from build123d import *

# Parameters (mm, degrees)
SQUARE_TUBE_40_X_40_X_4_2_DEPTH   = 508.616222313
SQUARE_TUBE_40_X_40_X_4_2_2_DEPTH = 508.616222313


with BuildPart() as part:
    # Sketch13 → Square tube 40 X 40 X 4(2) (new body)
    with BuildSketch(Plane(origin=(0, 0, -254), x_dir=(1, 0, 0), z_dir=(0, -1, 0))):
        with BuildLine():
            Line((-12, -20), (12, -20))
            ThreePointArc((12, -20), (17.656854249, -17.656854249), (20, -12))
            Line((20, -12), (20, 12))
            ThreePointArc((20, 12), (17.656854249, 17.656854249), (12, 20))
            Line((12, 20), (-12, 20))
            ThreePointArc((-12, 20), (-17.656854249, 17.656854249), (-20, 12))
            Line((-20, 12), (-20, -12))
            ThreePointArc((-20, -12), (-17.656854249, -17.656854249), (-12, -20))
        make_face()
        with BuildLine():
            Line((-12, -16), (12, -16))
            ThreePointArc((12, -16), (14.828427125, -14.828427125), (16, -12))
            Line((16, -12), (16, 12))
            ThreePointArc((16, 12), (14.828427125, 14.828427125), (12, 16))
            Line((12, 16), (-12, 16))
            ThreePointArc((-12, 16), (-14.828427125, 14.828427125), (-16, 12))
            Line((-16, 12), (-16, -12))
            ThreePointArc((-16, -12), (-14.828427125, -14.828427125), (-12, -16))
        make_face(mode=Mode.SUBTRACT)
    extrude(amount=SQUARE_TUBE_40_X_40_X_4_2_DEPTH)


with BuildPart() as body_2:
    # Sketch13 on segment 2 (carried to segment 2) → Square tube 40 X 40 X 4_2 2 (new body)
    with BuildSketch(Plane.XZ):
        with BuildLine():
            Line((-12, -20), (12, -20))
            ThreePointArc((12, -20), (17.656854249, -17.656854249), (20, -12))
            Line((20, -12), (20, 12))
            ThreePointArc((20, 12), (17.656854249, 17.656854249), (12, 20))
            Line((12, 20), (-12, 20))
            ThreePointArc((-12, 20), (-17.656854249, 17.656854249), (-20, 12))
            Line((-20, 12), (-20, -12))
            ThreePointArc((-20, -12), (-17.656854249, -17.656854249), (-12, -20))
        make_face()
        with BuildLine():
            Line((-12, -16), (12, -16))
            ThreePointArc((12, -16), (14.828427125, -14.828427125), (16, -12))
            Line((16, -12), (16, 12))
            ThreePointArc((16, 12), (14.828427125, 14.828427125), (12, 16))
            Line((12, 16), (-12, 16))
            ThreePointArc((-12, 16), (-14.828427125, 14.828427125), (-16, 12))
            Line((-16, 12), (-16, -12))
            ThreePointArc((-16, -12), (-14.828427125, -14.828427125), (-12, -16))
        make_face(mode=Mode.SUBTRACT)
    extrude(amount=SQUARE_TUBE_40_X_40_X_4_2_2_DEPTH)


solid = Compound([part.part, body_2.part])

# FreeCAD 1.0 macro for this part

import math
import FreeCAD as App
import Part
import Sketcher
Q = App.Units.Quantity

doc = App.newDocument("Part")
body = doc.addObject("PartDesign::Body", "Body")

sketch1 = body.newObject("Sketcher::SketchObject", "Sketch")
sketch1.AttachmentSupport = (doc.getObject("XZ_Plane"), [""])
sketch1.MapMode = "FlatFace"
sketch1.addGeometry([
    Part.LineSegment(App.Vector(-12, -274, 0), App.Vector(12, -274, 0)),
    Part.ArcOfCircle(Part.Circle(App.Vector(12, -266, 0), App.Vector(0, 0, 1), 8), math.radians(-90), math.radians(0)),
    Part.LineSegment(App.Vector(20, -266, 0), App.Vector(20, -242, 0)),
    Part.ArcOfCircle(Part.Circle(App.Vector(12, -242, 0), App.Vector(0, 0, 1), 8), math.radians(0), math.radians(90)),
    Part.LineSegment(App.Vector(12, -234, 0), App.Vector(-12, -234, 0)),
    Part.ArcOfCircle(Part.Circle(App.Vector(-12, -242, 0), App.Vector(0, 0, 1), 8), math.radians(90), math.radians(180)),
    Part.LineSegment(App.Vector(-20, -242, 0), App.Vector(-20, -266, 0)),
    Part.ArcOfCircle(Part.Circle(App.Vector(-12, -266, 0), App.Vector(0, 0, 1), 8), math.radians(-180), math.radians(-90)),
    Part.LineSegment(App.Vector(12, -270, 0), App.Vector(-12, -270, 0)),
    Part.ArcOfCircle(Part.Circle(App.Vector(-12, -266, 0), App.Vector(0, 0, 1), 4), math.radians(180), math.radians(270)),
    Part.LineSegment(App.Vector(-16, -266, 0), App.Vector(-16, -242, 0)),
    Part.ArcOfCircle(Part.Circle(App.Vector(-12, -242, 0), App.Vector(0, 0, 1), 4), math.radians(90), math.radians(180)),
    Part.LineSegment(App.Vector(-12, -238, 0), App.Vector(12, -238, 0)),
    Part.ArcOfCircle(Part.Circle(App.Vector(12, -242, 0), App.Vector(0, 0, 1), 4), math.radians(0), math.radians(90)),
    Part.LineSegment(App.Vector(16, -242, 0), App.Vector(16, -266, 0)),
    Part.ArcOfCircle(Part.Circle(App.Vector(12, -266, 0), App.Vector(0, 0, 1), 4), math.radians(-90), math.radians(0)),
], False)
sketch1.addConstraint([
    Sketcher.Constraint("Tangent", 0, 2, 1, 1),
    Sketcher.Constraint("Tangent", 1, 2, 2, 1),
    Sketcher.Constraint("Tangent", 2, 2, 3, 1),
    Sketcher.Constraint("Tangent", 3, 2, 4, 1),
    Sketcher.Constraint("Tangent", 4, 2, 5, 1),
    Sketcher.Constraint("Tangent", 5, 2, 6, 1),
    Sketcher.Constraint("Tangent", 6, 2, 7, 1),
    Sketcher.Constraint("Tangent", 7, 2, 0, 1),
    Sketcher.Constraint("Tangent", 8, 2, 9, 2),
    Sketcher.Constraint("Tangent", 9, 1, 10, 1),
    Sketcher.Constraint("Tangent", 10, 2, 11, 2),
    Sketcher.Constraint("Tangent", 11, 1, 12, 1),
    Sketcher.Constraint("Tangent", 12, 2, 13, 2),
    Sketcher.Constraint("Tangent", 13, 1, 14, 1),
    Sketcher.Constraint("Tangent", 14, 2, 15, 2),
    Sketcher.Constraint("Tangent", 15, 1, 8, 1),
    Sketcher.Constraint("Horizontal", 0),
    Sketcher.Constraint("Vertical", 2),
    Sketcher.Constraint("Horizontal", 4),
    Sketcher.Constraint("Vertical", 6),
    Sketcher.Constraint("Horizontal", 8),
    Sketcher.Constraint("Vertical", 10),
    Sketcher.Constraint("Horizontal", 12),
    Sketcher.Constraint("Vertical", 14),
    Sketcher.Constraint("Coincident", 9, 3, 7, 3),
    Sketcher.Constraint("Coincident", 11, 3, 5, 3),
    Sketcher.Constraint("Coincident", 13, 3, 3, 3),
    Sketcher.Constraint("Equal", 1, 3),
    Sketcher.Constraint("Equal", 3, 5),
    Sketcher.Constraint("Equal", 5, 7),
    Sketcher.Constraint("Equal", 13, 15),
    Sketcher.Constraint("Equal", 12, 2),
    Sketcher.Constraint("Radius", 1, Q("8 mm")),
    Sketcher.Constraint("Radius", 9, Q("4 mm")),
    Sketcher.Constraint("DistanceX", 0, 1, 0, 2, Q("24 mm")),
    Sketcher.Constraint("DistanceX", -1, 1, 1, 3, Q("12 mm")),
    Sketcher.Constraint("DistanceY", 1, 3, -1, 1, Q("266 mm")),
])
pad1 = body.newObject("PartDesign::Pad", "Pad")
pad1.Profile = sketch1
pad1.Length = 508.616222
body2 = doc.addObject("PartDesign::Body", "Body001")

sketch2 = body2.newObject("Sketcher::SketchObject", "Sketch001")
sketch2.AttachmentSupport = (doc.getObject("XZ_Plane001"), [""])
sketch2.MapMode = "FlatFace"
sketch2.addGeometry([
    Part.LineSegment(App.Vector(-12, -20, 0), App.Vector(12, -20, 0)),
    Part.ArcOfCircle(Part.Circle(App.Vector(12, -12, 0), App.Vector(0, 0, 1), 8), math.radians(-90), math.radians(0)),
    Part.LineSegment(App.Vector(20, -12, 0), App.Vector(20, 12, 0)),
    Part.ArcOfCircle(Part.Circle(App.Vector(12, 12, 0), App.Vector(0, 0, 1), 8), math.radians(0), math.radians(90)),
    Part.LineSegment(App.Vector(12, 20, 0), App.Vector(-12, 20, 0)),
    Part.ArcOfCircle(Part.Circle(App.Vector(-12, 12, 0), App.Vector(0, 0, 1), 8), math.radians(90), math.radians(180)),
    Part.LineSegment(App.Vector(-20, 12, 0), App.Vector(-20, -12, 0)),
    Part.ArcOfCircle(Part.Circle(App.Vector(-12, -12, 0), App.Vector(0, 0, 1), 8), math.radians(-180), math.radians(-90)),
    Part.LineSegment(App.Vector(12, -16, 0), App.Vector(-12, -16, 0)),
    Part.ArcOfCircle(Part.Circle(App.Vector(-12, -12, 0), App.Vector(0, 0, 1), 4), math.radians(180), math.radians(270)),
    Part.LineSegment(App.Vector(-16, -12, 0), App.Vector(-16, 12, 0)),
    Part.ArcOfCircle(Part.Circle(App.Vector(-12, 12, 0), App.Vector(0, 0, 1), 4), math.radians(90), math.radians(180)),
    Part.LineSegment(App.Vector(-12, 16, 0), App.Vector(12, 16, 0)),
    Part.ArcOfCircle(Part.Circle(App.Vector(12, 12, 0), App.Vector(0, 0, 1), 4), math.radians(0), math.radians(90)),
    Part.LineSegment(App.Vector(16, 12, 0), App.Vector(16, -12, 0)),
    Part.ArcOfCircle(Part.Circle(App.Vector(12, -12, 0), App.Vector(0, 0, 1), 4), math.radians(-90), math.radians(0)),
], False)
sketch2.addConstraint([
    Sketcher.Constraint("Tangent", 0, 2, 1, 1),
    Sketcher.Constraint("Tangent", 1, 2, 2, 1),
    Sketcher.Constraint("Tangent", 2, 2, 3, 1),
    Sketcher.Constraint("Tangent", 3, 2, 4, 1),
    Sketcher.Constraint("Tangent", 4, 2, 5, 1),
    Sketcher.Constraint("Tangent", 5, 2, 6, 1),
    Sketcher.Constraint("Tangent", 6, 2, 7, 1),
    Sketcher.Constraint("Tangent", 7, 2, 0, 1),
    Sketcher.Constraint("Tangent", 8, 2, 9, 2),
    Sketcher.Constraint("Tangent", 9, 1, 10, 1),
    Sketcher.Constraint("Tangent", 10, 2, 11, 2),
    Sketcher.Constraint("Tangent", 11, 1, 12, 1),
    Sketcher.Constraint("Tangent", 12, 2, 13, 2),
    Sketcher.Constraint("Tangent", 13, 1, 14, 1),
    Sketcher.Constraint("Tangent", 14, 2, 15, 2),
    Sketcher.Constraint("Tangent", 15, 1, 8, 1),
    Sketcher.Constraint("Horizontal", 0),
    Sketcher.Constraint("Vertical", 2),
    Sketcher.Constraint("Horizontal", 4),
    Sketcher.Constraint("Vertical", 6),
    Sketcher.Constraint("Horizontal", 8),
    Sketcher.Constraint("Vertical", 10),
    Sketcher.Constraint("Horizontal", 12),
    Sketcher.Constraint("Vertical", 14),
    Sketcher.Constraint("Coincident", 9, 3, 7, 3),
    Sketcher.Constraint("Coincident", 11, 3, 5, 3),
    Sketcher.Constraint("Coincident", 13, 3, 3, 3),
    Sketcher.Constraint("Equal", 1, 3),
    Sketcher.Constraint("Equal", 3, 5),
    Sketcher.Constraint("Equal", 5, 7),
    Sketcher.Constraint("Equal", 13, 15),
    Sketcher.Constraint("Symmetric", 1, 3, 5, 3, -1, 1),
    Sketcher.Constraint("Equal", 12, 2),
    Sketcher.Constraint("Radius", 1, Q("8 mm")),
    Sketcher.Constraint("Radius", 9, Q("4 mm")),
    Sketcher.Constraint("DistanceX", 0, 1, 0, 2, Q("24 mm")),
])
pad2 = body2.newObject("PartDesign::Pad", "Pad001")
pad2.Profile = sketch2
pad2.Length = 508.616222

doc.recompute()
